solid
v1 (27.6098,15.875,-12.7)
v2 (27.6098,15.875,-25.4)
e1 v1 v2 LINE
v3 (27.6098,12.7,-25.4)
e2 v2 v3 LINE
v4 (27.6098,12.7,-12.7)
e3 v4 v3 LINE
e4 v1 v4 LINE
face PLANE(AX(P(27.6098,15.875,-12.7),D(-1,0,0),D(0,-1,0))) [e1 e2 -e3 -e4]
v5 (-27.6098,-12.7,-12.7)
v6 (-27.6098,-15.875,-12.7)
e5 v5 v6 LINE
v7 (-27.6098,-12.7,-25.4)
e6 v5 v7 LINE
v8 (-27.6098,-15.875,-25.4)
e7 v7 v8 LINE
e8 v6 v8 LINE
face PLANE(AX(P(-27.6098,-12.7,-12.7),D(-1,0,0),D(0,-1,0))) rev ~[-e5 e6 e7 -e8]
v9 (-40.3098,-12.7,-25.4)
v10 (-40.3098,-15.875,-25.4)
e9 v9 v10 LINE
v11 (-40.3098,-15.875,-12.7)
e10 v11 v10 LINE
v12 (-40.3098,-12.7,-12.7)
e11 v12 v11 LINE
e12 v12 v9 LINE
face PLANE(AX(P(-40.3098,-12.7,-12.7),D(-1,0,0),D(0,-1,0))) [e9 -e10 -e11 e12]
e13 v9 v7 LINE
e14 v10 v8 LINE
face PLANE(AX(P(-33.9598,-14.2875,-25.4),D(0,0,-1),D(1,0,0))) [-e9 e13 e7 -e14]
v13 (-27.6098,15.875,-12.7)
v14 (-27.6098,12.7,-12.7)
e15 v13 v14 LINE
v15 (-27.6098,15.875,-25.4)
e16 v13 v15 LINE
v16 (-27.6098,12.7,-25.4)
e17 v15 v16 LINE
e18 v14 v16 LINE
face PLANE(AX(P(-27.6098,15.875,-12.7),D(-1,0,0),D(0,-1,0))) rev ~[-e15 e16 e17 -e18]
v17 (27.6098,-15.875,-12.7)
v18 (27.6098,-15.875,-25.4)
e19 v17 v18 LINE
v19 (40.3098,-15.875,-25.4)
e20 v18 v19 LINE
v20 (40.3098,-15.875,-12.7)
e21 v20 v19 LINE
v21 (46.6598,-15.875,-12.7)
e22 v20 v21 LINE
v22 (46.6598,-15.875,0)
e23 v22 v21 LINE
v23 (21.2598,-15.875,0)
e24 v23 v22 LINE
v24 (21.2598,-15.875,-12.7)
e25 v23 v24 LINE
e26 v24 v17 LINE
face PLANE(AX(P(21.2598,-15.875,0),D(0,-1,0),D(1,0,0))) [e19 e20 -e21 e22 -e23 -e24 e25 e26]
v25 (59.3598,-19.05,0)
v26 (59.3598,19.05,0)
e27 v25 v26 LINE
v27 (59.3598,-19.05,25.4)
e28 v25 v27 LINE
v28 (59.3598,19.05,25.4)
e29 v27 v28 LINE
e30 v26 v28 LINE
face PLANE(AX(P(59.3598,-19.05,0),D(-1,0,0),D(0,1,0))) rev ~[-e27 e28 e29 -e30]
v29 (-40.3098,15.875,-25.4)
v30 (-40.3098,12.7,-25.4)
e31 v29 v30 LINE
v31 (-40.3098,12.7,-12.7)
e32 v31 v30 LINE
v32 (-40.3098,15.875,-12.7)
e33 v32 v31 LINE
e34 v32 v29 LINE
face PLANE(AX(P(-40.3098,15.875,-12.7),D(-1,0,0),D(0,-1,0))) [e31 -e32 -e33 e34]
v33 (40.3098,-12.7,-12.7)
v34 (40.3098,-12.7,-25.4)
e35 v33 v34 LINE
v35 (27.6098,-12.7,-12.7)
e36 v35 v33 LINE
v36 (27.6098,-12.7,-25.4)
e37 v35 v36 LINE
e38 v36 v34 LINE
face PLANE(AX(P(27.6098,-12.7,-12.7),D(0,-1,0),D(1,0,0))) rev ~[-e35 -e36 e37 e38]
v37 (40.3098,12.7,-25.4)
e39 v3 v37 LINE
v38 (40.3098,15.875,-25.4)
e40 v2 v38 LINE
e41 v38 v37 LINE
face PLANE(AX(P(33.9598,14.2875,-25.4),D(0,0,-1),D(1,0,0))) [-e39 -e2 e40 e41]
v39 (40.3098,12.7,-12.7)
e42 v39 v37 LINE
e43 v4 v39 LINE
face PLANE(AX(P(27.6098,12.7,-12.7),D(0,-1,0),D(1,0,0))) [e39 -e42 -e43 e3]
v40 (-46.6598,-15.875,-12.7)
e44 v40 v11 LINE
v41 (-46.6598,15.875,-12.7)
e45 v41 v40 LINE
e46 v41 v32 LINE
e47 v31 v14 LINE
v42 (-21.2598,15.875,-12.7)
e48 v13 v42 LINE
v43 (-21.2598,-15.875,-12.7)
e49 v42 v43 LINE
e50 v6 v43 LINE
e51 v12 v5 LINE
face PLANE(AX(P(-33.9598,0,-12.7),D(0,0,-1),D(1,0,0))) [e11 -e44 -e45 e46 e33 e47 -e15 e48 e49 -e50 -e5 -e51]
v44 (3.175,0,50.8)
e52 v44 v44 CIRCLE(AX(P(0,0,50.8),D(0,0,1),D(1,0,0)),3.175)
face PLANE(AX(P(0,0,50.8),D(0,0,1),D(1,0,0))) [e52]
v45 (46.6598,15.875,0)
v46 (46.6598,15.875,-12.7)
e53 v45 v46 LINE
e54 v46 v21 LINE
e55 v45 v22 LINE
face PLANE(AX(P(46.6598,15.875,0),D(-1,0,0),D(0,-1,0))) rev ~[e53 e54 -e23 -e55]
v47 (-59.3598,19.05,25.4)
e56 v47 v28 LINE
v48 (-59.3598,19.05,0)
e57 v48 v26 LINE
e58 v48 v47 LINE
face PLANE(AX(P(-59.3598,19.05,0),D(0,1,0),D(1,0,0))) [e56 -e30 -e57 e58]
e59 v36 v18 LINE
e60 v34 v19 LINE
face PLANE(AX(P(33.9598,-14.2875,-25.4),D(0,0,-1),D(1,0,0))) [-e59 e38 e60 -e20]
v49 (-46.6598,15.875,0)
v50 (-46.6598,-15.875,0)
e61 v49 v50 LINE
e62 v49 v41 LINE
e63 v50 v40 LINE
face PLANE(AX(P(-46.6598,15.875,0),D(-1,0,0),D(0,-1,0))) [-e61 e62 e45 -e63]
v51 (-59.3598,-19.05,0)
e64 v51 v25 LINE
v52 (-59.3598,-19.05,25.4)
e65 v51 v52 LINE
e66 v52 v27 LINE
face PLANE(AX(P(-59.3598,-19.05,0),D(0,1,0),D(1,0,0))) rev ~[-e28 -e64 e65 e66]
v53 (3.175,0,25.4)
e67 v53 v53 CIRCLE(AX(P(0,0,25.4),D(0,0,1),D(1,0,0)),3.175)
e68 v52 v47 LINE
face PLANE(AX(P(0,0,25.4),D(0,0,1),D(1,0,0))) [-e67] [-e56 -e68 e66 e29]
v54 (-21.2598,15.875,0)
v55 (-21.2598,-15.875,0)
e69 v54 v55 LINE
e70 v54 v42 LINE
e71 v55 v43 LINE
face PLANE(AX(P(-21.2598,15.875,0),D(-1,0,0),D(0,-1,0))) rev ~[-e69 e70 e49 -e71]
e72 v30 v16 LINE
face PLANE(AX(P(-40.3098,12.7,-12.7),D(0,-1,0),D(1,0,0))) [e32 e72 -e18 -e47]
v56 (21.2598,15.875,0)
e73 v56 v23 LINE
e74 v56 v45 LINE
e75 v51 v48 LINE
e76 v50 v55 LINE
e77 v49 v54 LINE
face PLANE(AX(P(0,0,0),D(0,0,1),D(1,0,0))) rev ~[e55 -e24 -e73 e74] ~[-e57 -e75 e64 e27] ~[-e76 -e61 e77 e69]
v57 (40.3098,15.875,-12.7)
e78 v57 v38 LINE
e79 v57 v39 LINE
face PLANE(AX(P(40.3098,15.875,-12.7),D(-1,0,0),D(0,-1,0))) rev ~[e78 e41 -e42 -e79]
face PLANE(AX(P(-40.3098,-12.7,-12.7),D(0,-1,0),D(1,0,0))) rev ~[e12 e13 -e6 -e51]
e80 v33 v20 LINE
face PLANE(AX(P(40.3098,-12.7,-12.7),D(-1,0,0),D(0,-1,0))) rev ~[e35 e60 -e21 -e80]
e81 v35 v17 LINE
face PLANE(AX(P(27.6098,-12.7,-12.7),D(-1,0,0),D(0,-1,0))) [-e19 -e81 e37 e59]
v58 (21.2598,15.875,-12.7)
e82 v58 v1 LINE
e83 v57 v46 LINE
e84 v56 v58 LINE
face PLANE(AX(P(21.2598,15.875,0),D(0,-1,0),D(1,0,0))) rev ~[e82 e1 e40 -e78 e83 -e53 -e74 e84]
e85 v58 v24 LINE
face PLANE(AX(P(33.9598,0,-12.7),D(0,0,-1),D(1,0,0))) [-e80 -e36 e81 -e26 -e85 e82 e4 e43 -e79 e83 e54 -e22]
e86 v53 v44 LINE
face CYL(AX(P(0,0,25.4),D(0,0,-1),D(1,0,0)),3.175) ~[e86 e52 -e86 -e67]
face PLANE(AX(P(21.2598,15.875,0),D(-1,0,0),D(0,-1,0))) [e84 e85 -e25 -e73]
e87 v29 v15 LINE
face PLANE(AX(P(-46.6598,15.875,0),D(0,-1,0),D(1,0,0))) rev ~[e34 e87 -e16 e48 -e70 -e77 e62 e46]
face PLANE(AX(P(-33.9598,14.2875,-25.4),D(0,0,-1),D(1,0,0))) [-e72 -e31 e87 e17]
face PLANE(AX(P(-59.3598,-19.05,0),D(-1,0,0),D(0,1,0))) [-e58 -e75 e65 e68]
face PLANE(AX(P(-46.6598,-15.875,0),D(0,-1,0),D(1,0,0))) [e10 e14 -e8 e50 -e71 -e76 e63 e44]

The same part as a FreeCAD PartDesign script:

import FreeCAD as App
import Part
import Sketcher
from FreeCAD import Vector
Q = App.Units.Quantity


def add_polygon(sketch, points):
    """Adds a closed chain of lines whose ends are joined by coincident constraints."""
    first, n = sketch.GeometryCount, len(points)
    for a, b in zip(points, points[1:] + points[:1]):
        sketch.addGeometry(Part.LineSegment(App.Vector(*a, 0), App.Vector(*b, 0)), False)
    for i in range(n):
        sketch.addConstraint(Sketcher.Constraint("Coincident", first + i, 2, first + (i + 1) % n, 1))

doc = App.newDocument("Part")
params = doc.addObject("Spreadsheet::Sheet", "Params")
for row, (alias, value) in enumerate([
    ("sketch1_height", "1.5 in"),
    ("sketch1_width", "4.674 in"),
    ("pad1_length", "1 in"),
    ("sketch2_width", "1 in"),
    ("sketch2_height", "1.25 in"),
    ("pad2_length", "0.5 in"),
    ("sketch3_width", "0.5 in"),
    ("sketch3_height", "0.125 in"),
    ("pad3_length", "0.5 in"),
    ("sketch4_width", "0.5 in"),
    ("sketch4_height", "0.125 in"),
    ("pad4_length", "0.5 in"),
    ("sketch5_diameter", "0.25 in"),
    ("pad5_length", "1 in"),
], start=1):
    params.set(f"A{row}", alias)
    params.set(f"B{row}", "=" + value)
    params.setAlias(f"B{row}", alias)

body = doc.addObject("PartDesign::Body", "Body")

# Sketch on XY plane
sketch1 = doc.addObject("Sketcher::SketchObject", "Sketch")
body.addObject(sketch1)
sketch1.AttachmentSupport = (doc.XY_Plane, [""])
sketch1.MapMode = "FlatFace"
add_polygon(sketch1, [(-59, 19), (-59, -19), (59, -19), (59, 19)])  # lines 0-3
sketch1.addConstraint(Sketcher.Constraint("Vertical", 0))
sketch1.addConstraint(Sketcher.Constraint("Horizontal", 1))
sketch1.addConstraint(Sketcher.Constraint("Vertical", 2))
sketch1.addConstraint(Sketcher.Constraint("Horizontal", 3))
sketch1.addConstraint(Sketcher.Constraint("Symmetric", 0, 2, 2, 2, -1, 1))
sketch1.addConstraint(Sketcher.Constraint("DistanceY", 0, 2, 0, 1, Q("1.5 in")))
sketch1.addConstraint(Sketcher.Constraint("DistanceX", 1, 1, 1, 2, Q("4.674 in")))
sketch1.setExpression("Constraints[9]", "Params.sketch1_height")
sketch1.setExpression("Constraints[10]", "Params.sketch1_width")
pad1 = doc.addObject("PartDesign::Pad", "Pad")
body.addObject(pad1)
pad1.Profile = sketch1
pad1.setExpression("Length", "Params.pad1_length")

# Sketch on XY plane
sketch2 = doc.addObject("Sketcher::SketchObject", "Sketch001")
body.addObject(sketch2)
sketch2.AttachmentSupport = (doc.XY_Plane, [""])
sketch2.MapMode = "FlatFace"
add_polygon(sketch2, [(-47, -16), (-47, 16), (-21, 16), (-21, -16)])  # lines 0-3
add_polygon(sketch2, [(21, -16), (21, 16), (47, 16), (47, -16)])  # lines 4-7
sketch2.addConstraint(Sketcher.Constraint("Vertical", 0))
sketch2.addConstraint(Sketcher.Constraint("Horizontal", 1))
sketch2.addConstraint(Sketcher.Constraint("Vertical", 2))
sketch2.addConstraint(Sketcher.Constraint("Horizontal", 3))
sketch2.addConstraint(Sketcher.Constraint("Vertical", 4))
sketch2.addConstraint(Sketcher.Constraint("Horizontal", 5))
sketch2.addConstraint(Sketcher.Constraint("Vertical", 6))
sketch2.addConstraint(Sketcher.Constraint("Horizontal", 7))
sketch2.addConstraint(Sketcher.Constraint("Symmetric", 2, 2, 4, 2, -1, 1))
sketch2.addConstraint(Sketcher.Constraint("Symmetric", 0, 2, 6, 2, -1, 1))
sketch2.addConstraint(Sketcher.Constraint("Horizontal", 1, 2, 4, 2))
sketch2.addConstraint(Sketcher.Constraint("DistanceX", 1, 1, 1, 2, Q("1 in")))
sketch2.addConstraint(Sketcher.Constraint("DistanceY", 0, 1, 0, 2, Q("1.25 in")))
sketch2.addConstraint(Sketcher.Constraint("DistanceX", 0, 2, -1, 1, Q("1.837 in")))
sketch2.setExpression("Constraints[19]", "Params.sketch2_width")
sketch2.setExpression("Constraints[20]", "Params.sketch2_height")
pad2 = doc.addObject("PartDesign::Pad", "Pad001")
body.addObject(pad2)
pad2.Profile = sketch2
pad2.setExpression("Length", "Params.pad2_length")
pad2.Reversed = True

# Sketch on XY plane
sketch3 = doc.addObject("Sketcher::SketchObject", "Sketch002")
body.addObject(sketch3)
sketch3.AttachmentSupport = (doc.XY_Plane, [""])
sketch3.MapMode = "FlatFace"
sketch3.AttachmentOffset = App.Placement(Vector(0, 0, -0.5 * 25.4), App.Rotation())
add_polygon(sketch3, [(-40.3, -15.9), (-40.3, -12.7), (-27.6, -12.7), (-27.6, -15.9)])  # lines 0-3
add_polygon(sketch3, [(-40.3, 12.7), (-40.3, 15.9), (-27.6, 15.9), (-27.6, 12.7)])  # lines 4-7
sketch3.addConstraint(Sketcher.Constraint("Vertical", 0))
sketch3.addConstraint(Sketcher.Constraint("Horizontal", 1))
sketch3.addConstraint(Sketcher.Constraint("Vertical", 2))
sketch3.addConstraint(Sketcher.Constraint("Horizontal", 3))
sketch3.addConstraint(Sketcher.Constraint("Vertical", 4))
sketch3.addConstraint(Sketcher.Constraint("Horizontal", 5))
sketch3.addConstraint(Sketcher.Constraint("Vertical", 6))
sketch3.addConstraint(Sketcher.Constraint("Horizontal", 7))
sketch3.addConstraint(Sketcher.Constraint("Symmetric", 3, 2, 4, 2, -1))
sketch3.addConstraint(Sketcher.Constraint("Symmetric", 1, 2, 6, 2, -1))
sketch3.addConstraint(Sketcher.Constraint("DistanceX", 1, 1, 1, 2, Q("0.5 in")))
sketch3.addConstraint(Sketcher.Constraint("DistanceY", 1, 2, 6, 2, Q("1 in")))
sketch3.addConstraint(Sketcher.Constraint("DistanceY", 0, 1, 0, 2, Q("0.125 in")))
sketch3.addConstraint(Sketcher.Constraint("DistanceX", 0, 2, -1, 1, Q("1.587 in")))
sketch3.setExpression("Constraints[18]", "Params.sketch3_width")
sketch3.setExpression("Constraints[20]", "Params.sketch3_height")
pad3 = doc.addObject("PartDesign::Pad", "Pad002")
body.addObject(pad3)
pad3.Profile = sketch3
pad3.setExpression("Length", "Params.pad3_length")
pad3.Reversed = True

# Sketch on XY plane
sketch4 = doc.addObject("Sketcher::SketchObject", "Sketch003")
body.addObject(sketch4)
sketch4.AttachmentSupport = (doc.XY_Plane, [""])
sketch4.MapMode = "FlatFace"
sketch4.AttachmentOffset = App.Placement(Vector(0, 0, -0.5 * 25.4), App.Rotation())
add_polygon(sketch4, [(27.6, -15.9), (27.6, -12.7), (40.3, -12.7), (40.3, -15.9)])  # lines 0-3
add_polygon(sketch4, [(27.6, 12.7), (27.6, 15.9), (40.3, 15.9), (40.3, 12.7)])  # lines 4-7
sketch4.addConstraint(Sketcher.Constraint("Vertical", 0))
sketch4.addConstraint(Sketcher.Constraint("Horizontal", 1))
sketch4.addConstraint(Sketcher.Constraint("Vertical", 2))
sketch4.addConstraint(Sketcher.Constraint("Horizontal", 3))
sketch4.addConstraint(Sketcher.Constraint("Vertical", 4))
sketch4.addConstraint(Sketcher.Constraint("Horizontal", 5))
sketch4.addConstraint(Sketcher.Constraint("Vertical", 6))
sketch4.addConstraint(Sketcher.Constraint("Horizontal", 7))
sketch4.addConstraint(Sketcher.Constraint("Symmetric", 3, 2, 4, 2, -1))
sketch4.addConstraint(Sketcher.Constraint("Symmetric", 1, 2, 6, 2, -1))
sketch4.addConstraint(Sketcher.Constraint("DistanceX", 1, 1, 1, 2, Q("0.5 in")))
sketch4.addConstraint(Sketcher.Constraint("DistanceY", 1, 2, 6, 2, Q("1 in")))
sketch4.addConstraint(Sketcher.Constraint("DistanceY", 0, 1, 0, 2, Q("0.125 in")))
sketch4.addConstraint(Sketcher.Constraint("DistanceX", -1, 1, 0, 2, Q("1.087 in")))
sketch4.setExpression("Constraints[18]", "Params.sketch4_width")
sketch4.setExpression("Constraints[20]", "Params.sketch4_height")
pad4 = doc.addObject("PartDesign::Pad", "Pad003")
body.addObject(pad4)
pad4.Profile = sketch4
pad4.setExpression("Length", "Params.pad4_length")
pad4.Reversed = True

# Sketch on XY plane
sketch5 = doc.addObject("Sketcher::SketchObject", "Sketch004")
body.addObject(sketch5)
sketch5.AttachmentSupport = (doc.XY_Plane, [""])
sketch5.MapMode = "FlatFace"
sketch5.AttachmentOffset = App.Placement(Vector(0, 0, 1 * 25.4), App.Rotation())
sketch5.addGeometry(Part.Circle(Vector(0, 0, 0), Vector(0, 0, 1), 3.2), False)
sketch5.addConstraint(Sketcher.Constraint("Coincident", 0, 3, -1, 1))
sketch5.addConstraint(Sketcher.Constraint("Diameter", 0, Q("0.25 in")))
sketch5.setExpression("Constraints[1]", "Params.sketch5_diameter")
pad5 = doc.addObject("PartDesign::Pad", "Pad004")
body.addObject(pad5)
pad5.Profile = sketch5
pad5.setExpression("Length", "Params.pad5_length")

doc.recompute()
